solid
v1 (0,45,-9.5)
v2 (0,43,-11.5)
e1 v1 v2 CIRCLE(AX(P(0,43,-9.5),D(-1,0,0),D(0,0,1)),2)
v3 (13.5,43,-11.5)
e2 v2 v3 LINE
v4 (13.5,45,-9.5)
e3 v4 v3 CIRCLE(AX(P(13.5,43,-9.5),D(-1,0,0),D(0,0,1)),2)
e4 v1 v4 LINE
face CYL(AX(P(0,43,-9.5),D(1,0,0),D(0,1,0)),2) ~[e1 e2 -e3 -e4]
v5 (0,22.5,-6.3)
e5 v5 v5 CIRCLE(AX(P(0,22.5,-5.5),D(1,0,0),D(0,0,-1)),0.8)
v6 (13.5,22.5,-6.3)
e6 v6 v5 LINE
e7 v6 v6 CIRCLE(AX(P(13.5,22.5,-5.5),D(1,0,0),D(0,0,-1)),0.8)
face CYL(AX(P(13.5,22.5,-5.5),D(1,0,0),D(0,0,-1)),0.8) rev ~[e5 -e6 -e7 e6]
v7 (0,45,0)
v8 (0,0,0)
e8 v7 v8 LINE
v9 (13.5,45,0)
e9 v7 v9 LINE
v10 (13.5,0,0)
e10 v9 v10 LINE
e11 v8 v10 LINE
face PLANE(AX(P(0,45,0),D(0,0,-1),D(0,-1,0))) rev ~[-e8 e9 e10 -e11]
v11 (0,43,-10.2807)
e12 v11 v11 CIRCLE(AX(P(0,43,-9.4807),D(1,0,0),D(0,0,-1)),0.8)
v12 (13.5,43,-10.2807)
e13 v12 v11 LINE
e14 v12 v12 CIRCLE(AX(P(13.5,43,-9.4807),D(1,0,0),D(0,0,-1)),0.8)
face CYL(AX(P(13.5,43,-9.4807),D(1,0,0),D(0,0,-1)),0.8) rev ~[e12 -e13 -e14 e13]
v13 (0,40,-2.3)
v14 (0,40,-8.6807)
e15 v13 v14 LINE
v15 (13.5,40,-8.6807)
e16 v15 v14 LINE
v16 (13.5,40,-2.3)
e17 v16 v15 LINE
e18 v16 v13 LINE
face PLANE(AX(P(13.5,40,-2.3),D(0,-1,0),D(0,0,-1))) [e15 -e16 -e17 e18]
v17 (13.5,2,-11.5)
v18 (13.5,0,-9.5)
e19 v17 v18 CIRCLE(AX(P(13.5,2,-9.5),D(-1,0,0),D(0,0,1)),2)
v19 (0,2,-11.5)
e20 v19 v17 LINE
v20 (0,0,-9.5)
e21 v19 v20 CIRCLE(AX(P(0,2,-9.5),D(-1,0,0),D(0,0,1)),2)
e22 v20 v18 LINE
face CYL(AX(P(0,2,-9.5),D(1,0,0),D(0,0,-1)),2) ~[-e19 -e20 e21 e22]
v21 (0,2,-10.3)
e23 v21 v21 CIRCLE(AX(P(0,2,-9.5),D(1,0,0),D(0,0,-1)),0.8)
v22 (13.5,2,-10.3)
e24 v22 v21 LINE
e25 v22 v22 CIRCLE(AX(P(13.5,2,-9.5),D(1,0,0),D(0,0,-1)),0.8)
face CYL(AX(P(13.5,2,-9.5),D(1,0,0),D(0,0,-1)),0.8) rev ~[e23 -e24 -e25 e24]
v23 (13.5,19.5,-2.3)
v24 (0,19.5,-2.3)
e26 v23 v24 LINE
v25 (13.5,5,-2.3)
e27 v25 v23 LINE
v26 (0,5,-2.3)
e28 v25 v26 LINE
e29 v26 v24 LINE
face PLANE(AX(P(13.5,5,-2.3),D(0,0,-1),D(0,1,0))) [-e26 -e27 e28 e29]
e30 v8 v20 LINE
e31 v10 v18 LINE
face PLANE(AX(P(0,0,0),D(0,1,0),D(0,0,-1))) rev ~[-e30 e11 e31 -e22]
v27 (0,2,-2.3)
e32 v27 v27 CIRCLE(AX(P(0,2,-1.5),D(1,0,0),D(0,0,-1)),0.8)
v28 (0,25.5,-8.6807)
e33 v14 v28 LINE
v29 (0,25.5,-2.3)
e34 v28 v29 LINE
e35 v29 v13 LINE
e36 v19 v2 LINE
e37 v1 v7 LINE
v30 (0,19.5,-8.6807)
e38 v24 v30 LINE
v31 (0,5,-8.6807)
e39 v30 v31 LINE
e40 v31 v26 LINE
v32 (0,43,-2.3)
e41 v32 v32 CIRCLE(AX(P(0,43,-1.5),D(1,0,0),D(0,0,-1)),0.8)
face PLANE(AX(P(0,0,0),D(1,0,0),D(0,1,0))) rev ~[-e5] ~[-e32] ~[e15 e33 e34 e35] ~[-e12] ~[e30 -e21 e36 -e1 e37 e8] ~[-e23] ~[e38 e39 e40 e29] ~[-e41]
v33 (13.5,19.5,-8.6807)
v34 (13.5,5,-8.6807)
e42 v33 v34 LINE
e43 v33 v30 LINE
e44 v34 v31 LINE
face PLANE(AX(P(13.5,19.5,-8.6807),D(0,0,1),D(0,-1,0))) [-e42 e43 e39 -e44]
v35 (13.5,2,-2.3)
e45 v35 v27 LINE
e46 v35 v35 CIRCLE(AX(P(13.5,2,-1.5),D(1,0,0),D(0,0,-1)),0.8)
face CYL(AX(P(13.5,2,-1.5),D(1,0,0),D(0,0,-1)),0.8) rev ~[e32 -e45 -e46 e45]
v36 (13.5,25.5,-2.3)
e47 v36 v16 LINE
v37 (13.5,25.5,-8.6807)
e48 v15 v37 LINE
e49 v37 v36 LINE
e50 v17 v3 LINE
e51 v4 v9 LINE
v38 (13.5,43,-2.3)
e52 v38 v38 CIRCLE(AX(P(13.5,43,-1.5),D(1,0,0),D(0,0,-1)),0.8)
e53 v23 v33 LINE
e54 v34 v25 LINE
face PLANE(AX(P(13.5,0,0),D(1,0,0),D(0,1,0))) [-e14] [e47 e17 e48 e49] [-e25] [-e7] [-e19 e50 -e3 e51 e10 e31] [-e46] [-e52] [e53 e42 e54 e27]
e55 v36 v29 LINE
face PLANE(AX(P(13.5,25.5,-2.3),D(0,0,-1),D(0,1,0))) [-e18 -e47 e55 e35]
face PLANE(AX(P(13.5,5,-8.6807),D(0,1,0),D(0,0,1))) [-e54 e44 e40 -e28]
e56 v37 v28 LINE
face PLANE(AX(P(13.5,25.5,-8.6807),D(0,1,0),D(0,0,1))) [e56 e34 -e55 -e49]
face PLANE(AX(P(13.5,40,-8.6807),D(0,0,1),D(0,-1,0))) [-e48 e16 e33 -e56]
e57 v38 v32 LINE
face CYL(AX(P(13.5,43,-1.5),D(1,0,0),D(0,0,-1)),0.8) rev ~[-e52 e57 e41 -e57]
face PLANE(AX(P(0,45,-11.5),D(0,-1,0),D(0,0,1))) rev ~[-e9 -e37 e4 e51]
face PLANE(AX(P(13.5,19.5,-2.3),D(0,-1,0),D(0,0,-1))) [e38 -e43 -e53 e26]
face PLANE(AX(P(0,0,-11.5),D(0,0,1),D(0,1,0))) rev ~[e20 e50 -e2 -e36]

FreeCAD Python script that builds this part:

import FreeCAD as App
import Part
import Sketcher
from FreeCAD import Vector


def edges_at(feature, points):
    """Names of the edges that pass closest to the given points."""
    edges = feature.Shape.Edges
    near = lambda p: min(range(len(edges)), key=lambda i: edges[i].distToShape(Part.Vertex(*p))[0])
    return sorted({f"Edge{near(p) + 1}" for p in points})

doc = App.newDocument("Part")
body = doc.addObject("PartDesign::Body", "Body")

# Sketch on YZ plane
sketch1 = body.newObject("Sketcher::SketchObject", "Sketch")
sketch1.AttachmentSupport = (doc.getObject("YZ_Plane"), [""])
sketch1.MapMode = "FlatFace"
sketch1.addGeometry(Part.LineSegment(Vector(45, -11.5, 0), Vector(45, 0, 0)), False)
sketch1.addGeometry(Part.LineSegment(Vector(45, 0, 0), Vector(0, 0, 0)), False)
sketch1.addGeometry(Part.LineSegment(Vector(0, 0, 0), Vector(0, -11.5, 0)), False)
sketch1.addGeometry(Part.LineSegment(Vector(0, -11.5, 0), Vector(45, -11.5, 0)), False)
sketch1.addConstraint(Sketcher.Constraint("Coincident", 0, 2, 1, 1))
sketch1.addConstraint(Sketcher.Constraint("Coincident", 1, 2, 2, 1))
sketch1.addConstraint(Sketcher.Constraint("Coincident", 2, 2, 3, 1))
sketch1.addConstraint(Sketcher.Constraint("Coincident", 3, 2, 0, 1))
sketch1.addConstraint(Sketcher.Constraint("Vertical", 0))
sketch1.addConstraint(Sketcher.Constraint("Horizontal", 1))
sketch1.addConstraint(Sketcher.Constraint("Vertical", 2))
sketch1.addConstraint(Sketcher.Constraint("Horizontal", 3))
sketch1.addConstraint(Sketcher.Constraint("Coincident", 1, 2, -1, 1))
sketch1.addConstraint(Sketcher.Constraint("DistanceX", 1, 2, 1, 1, 45.0))
sketch1.addConstraint(Sketcher.Constraint("DistanceY", 0, 1, 0, 2, 11.5))
pad1 = body.newObject("PartDesign::Pad", "Pad")
pad1.Profile = sketch1
pad1.Length = 13.5

# Sketch on YZ plane
sketch2 = body.newObject("Sketcher::SketchObject", "Sketch001")
sketch2.AttachmentSupport = (doc.getObject("YZ_Plane"), [""])
sketch2.MapMode = "FlatFace"
sketch2.AttachmentOffset = App.Placement(Vector(0, 0, 13.5), App.Rotation())
sketch2.addGeometry(Part.Circle(Vector(43, -1.5, 0), Vector(0, 0, 1), 0.8), False)
sketch2.addGeometry(Part.Circle(Vector(43, -9.4807, 0), Vector(0, 0, 1), 0.8), False)
sketch2.addGeometry(Part.Circle(Vector(2, -9.5, 0), Vector(0, 0, 1), 0.8), False)
sketch2.addGeometry(Part.Circle(Vector(2, -1.5, 0), Vector(0, 0, 1), 0.8), False)
sketch2.addGeometry(Part.Circle(Vector(22.5, -5.5, 0), Vector(0, 0, 1), 0.8), False)
sketch2.addConstraint(Sketcher.Constraint("Equal", 0, 1))
sketch2.addConstraint(Sketcher.Constraint("Equal", 1, 2))
sketch2.addConstraint(Sketcher.Constraint("Equal", 2, 3))
sketch2.addConstraint(Sketcher.Constraint("Equal", 3, 4))
sketch2.addConstraint(Sketcher.Constraint("Horizontal", 0, 3, 3, 3))
sketch2.addConstraint(Sketcher.Constraint("Vertical", 0, 3, 1, 3))
sketch2.addConstraint(Sketcher.Constraint("Vertical", 2, 3, 3, 3))
sketch2.addConstraint(Sketcher.Constraint("Diameter", 0, 1.6))
sketch2.addConstraint(Sketcher.Constraint("DistanceX", -1, 1, 0, 3, 43.0))
sketch2.addConstraint(Sketcher.Constraint("DistanceX", -1, 1, 2, 3, 2.0))
sketch2.addConstraint(Sketcher.Constraint("DistanceY", 2, 3, 0, 3, 8.0))
sketch2.addConstraint(Sketcher.Constraint("DistanceY", 4, 3, 0, 3, 4.0))
sketch2.addConstraint(Sketcher.Constraint("DistanceY", 0, 3, -1, 1, 1.5))
sketch2.addConstraint(Sketcher.Constraint("DistanceX", -1, 1, 4, 3, 22.5))
sketch2.addConstraint(Sketcher.Constraint("DistanceY", 1, 3, -1, 1, 9.4807))
pocket1 = body.newObject("PartDesign::Pocket", "Pocket")
pocket1.Profile = sketch2
pocket1.Type = "ThroughAll"
doc.recompute()

fillet = body.newObject("PartDesign::Fillet", "Fillet")
fillet.Base = (pocket1, edges_at(pocket1, [(6.75, 45, -11.5), (6.75, 0, -11.5)]))
fillet.Radius = 2

# Sketch on YZ plane
sketch3 = body.newObject("Sketcher::SketchObject", "Sketch002")
sketch3.AttachmentSupport = (doc.getObject("YZ_Plane"), [""])
sketch3.MapMode = "FlatFace"
sketch3.AttachmentOffset = App.Placement(Vector(0, 0, 13.5), App.Rotation())
sketch3.addGeometry(Part.LineSegment(Vector(40, -8.6807, 0), Vector(40, -2.3, 0)), False)
sketch3.addGeometry(Part.LineSegment(Vector(40, -2.3, 0), Vector(25.5, -2.3, 0)), False)
sketch3.addGeometry(Part.LineSegment(Vector(25.5, -2.3, 0), Vector(25.5, -8.6807, 0)), False)
sketch3.addGeometry(Part.LineSegment(Vector(25.5, -8.6807, 0), Vector(40, -8.6807, 0)), False)
sketch3.addGeometry(Part.LineSegment(Vector(19.5, -8.6807, 0), Vector(19.5, -2.3, 0)), False)
sketch3.addGeometry(Part.LineSegment(Vector(19.5, -2.3, 0), Vector(5, -2.3, 0)), False)
sketch3.addGeometry(Part.LineSegment(Vector(5, -2.3, 0), Vector(5, -8.6807, 0)), False)
sketch3.addGeometry(Part.LineSegment(Vector(5, -8.6807, 0), Vector(19.5, -8.6807, 0)), False)
sketch3.addConstraint(Sketcher.Constraint("Coincident", 0, 2, 1, 1))
sketch3.addConstraint(Sketcher.Constraint("Coincident", 1, 2, 2, 1))
sketch3.addConstraint(Sketcher.Constraint("Coincident", 2, 2, 3, 1))
sketch3.addConstraint(Sketcher.Constraint("Coincident", 3, 2, 0, 1))
sketch3.addConstraint(Sketcher.Constraint("Coincident", 4, 2, 5, 1))
sketch3.addConstraint(Sketcher.Constraint("Coincident", 5, 2, 6, 1))
sketch3.addConstraint(Sketcher.Constraint("Coincident", 6, 2, 7, 1))
sketch3.addConstraint(Sketcher.Constraint("Coincident", 7, 2, 4, 1))
sketch3.addConstraint(Sketcher.Constraint("Vertical", 0))
sketch3.addConstraint(Sketcher.Constraint("Horizontal", 1))
sketch3.addConstraint(Sketcher.Constraint("Vertical", 2))
sketch3.addConstraint(Sketcher.Constraint("Horizontal", 3))
sketch3.addConstraint(Sketcher.Constraint("Vertical", 4))
sketch3.addConstraint(Sketcher.Constraint("Horizontal", 5))
sketch3.addConstraint(Sketcher.Constraint("Vertical", 6))
sketch3.addConstraint(Sketcher.Constraint("Horizontal", 7))
sketch3.addConstraint(Sketcher.Constraint("Horizontal", 1, 2, 4, 2))
sketch3.addConstraint(Sketcher.Constraint("Horizontal", 3, 2, 6, 2))
sketch3.addConstraint(Sketcher.Constraint("Equal", 3, 5))
sketch3.addConstraint(Sketcher.Constraint("DistanceX", 1, 2, 1, 1, 14.5))
sketch3.addConstraint(Sketcher.Constraint("DistanceX", -1, 1, 0, 2, 40.0))
sketch3.addConstraint(Sketcher.Constraint("DistanceX", -1, 1, 5, 2, 5.0))
sketch3.addConstraint(Sketcher.Constraint("DistanceY", 0, 2, -1, 1, 2.3))
sketch3.addConstraint(Sketcher.Constraint("DistanceY", 0, 1, 0, 2, 6.3807))
pocket2 = body.newObject("PartDesign::Pocket", "Pocket001")
pocket2.Profile = sketch3
pocket2.Type = "ThroughAll"

doc.recompute()
